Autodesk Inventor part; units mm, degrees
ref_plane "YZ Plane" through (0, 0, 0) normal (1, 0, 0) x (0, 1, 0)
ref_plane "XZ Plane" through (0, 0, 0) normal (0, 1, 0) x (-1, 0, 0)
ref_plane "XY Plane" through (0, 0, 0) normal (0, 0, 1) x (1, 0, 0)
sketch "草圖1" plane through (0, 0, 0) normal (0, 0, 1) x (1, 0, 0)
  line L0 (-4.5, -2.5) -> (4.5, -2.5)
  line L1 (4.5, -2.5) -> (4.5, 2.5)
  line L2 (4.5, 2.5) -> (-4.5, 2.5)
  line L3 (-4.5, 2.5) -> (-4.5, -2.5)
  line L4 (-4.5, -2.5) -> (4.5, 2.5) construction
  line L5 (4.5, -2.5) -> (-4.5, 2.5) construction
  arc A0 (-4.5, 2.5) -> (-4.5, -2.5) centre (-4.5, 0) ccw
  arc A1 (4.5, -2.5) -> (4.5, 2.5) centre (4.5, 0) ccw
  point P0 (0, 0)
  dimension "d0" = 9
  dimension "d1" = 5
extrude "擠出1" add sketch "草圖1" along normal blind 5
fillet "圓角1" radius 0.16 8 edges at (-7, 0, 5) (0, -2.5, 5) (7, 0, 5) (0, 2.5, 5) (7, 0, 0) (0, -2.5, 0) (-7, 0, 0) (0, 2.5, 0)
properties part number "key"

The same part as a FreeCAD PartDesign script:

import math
import FreeCAD as App
import Part
import Sketcher
from FreeCAD import Vector


def edges_at(feature, points):
    """Names of the edges that pass closest to the given points."""
    edges = feature.Shape.Edges
    near = lambda p: min(range(len(edges)), key=lambda i: edges[i].distToShape(Part.Vertex(*p))[0])
    return sorted({f"Edge{near(p) + 1}" for p in points})

doc = App.newDocument("Part")
body = doc.addObject("PartDesign::Body", "Body")

# Sketch on XY plane
sketch1 = doc.addObject("Sketcher::SketchObject", "Sketch")
body.addObject(sketch1)
sketch1.AttachmentSupport = (doc.XY_Plane, [""])
sketch1.MapMode = "FlatFace"
sketch1.addGeometry([
    Part.LineSegment(Vector(4.5, 2.5, 0), Vector(-4.5, 2.5, 0)),
    Part.ArcOfCircle(Part.Circle(Vector(-4.5, 0, 0), Vector(0, 0, 1), 2.5), math.radians(90), math.radians(270)),
    Part.LineSegment(Vector(-4.5, -2.5, 0), Vector(4.5, -2.5, 0)),
    Part.ArcOfCircle(Part.Circle(Vector(4.5, 0, 0), Vector(0, 0, 1), 2.5), math.radians(-90), math.radians(90)),
], False)
sketch1.addConstraint([
    Sketcher.Constraint("Tangent", 0, 2, 1, 1),
    Sketcher.Constraint("Tangent", 1, 2, 2, 1),
    Sketcher.Constraint("Tangent", 2, 2, 3, 1),
    Sketcher.Constraint("Tangent", 3, 2, 0, 1),
    Sketcher.Constraint("Horizontal", 0),
    Sketcher.Constraint("Horizontal", 2),
    Sketcher.Constraint("Symmetric", 1, 3, 3, 3, -1, 1),
    Sketcher.Constraint("Radius", 1, 2.5),
    Sketcher.Constraint("DistanceX", 0, 2, 0, 1, 9.0),
])
pad1 = doc.addObject("PartDesign::Pad", "Pad")
body.addObject(pad1)
pad1.Profile = sketch1
pad1.Length = 5
doc.recompute()

fillet = doc.addObject("PartDesign::Fillet", "Fillet")
body.addObject(fillet)
fillet.Base = (pad1, edges_at(pad1, [
    (-7, 0, 5),
    (0, -2.5, 5),
    (7, 0, 5),
    (0, 2.5, 5),
    (7, 0, 0),
    (0, -2.5, 0),
    (-7, 0, 0),
    (0, 2.5, 0),
]))
fillet.Radius = 0.16

doc.recompute()
